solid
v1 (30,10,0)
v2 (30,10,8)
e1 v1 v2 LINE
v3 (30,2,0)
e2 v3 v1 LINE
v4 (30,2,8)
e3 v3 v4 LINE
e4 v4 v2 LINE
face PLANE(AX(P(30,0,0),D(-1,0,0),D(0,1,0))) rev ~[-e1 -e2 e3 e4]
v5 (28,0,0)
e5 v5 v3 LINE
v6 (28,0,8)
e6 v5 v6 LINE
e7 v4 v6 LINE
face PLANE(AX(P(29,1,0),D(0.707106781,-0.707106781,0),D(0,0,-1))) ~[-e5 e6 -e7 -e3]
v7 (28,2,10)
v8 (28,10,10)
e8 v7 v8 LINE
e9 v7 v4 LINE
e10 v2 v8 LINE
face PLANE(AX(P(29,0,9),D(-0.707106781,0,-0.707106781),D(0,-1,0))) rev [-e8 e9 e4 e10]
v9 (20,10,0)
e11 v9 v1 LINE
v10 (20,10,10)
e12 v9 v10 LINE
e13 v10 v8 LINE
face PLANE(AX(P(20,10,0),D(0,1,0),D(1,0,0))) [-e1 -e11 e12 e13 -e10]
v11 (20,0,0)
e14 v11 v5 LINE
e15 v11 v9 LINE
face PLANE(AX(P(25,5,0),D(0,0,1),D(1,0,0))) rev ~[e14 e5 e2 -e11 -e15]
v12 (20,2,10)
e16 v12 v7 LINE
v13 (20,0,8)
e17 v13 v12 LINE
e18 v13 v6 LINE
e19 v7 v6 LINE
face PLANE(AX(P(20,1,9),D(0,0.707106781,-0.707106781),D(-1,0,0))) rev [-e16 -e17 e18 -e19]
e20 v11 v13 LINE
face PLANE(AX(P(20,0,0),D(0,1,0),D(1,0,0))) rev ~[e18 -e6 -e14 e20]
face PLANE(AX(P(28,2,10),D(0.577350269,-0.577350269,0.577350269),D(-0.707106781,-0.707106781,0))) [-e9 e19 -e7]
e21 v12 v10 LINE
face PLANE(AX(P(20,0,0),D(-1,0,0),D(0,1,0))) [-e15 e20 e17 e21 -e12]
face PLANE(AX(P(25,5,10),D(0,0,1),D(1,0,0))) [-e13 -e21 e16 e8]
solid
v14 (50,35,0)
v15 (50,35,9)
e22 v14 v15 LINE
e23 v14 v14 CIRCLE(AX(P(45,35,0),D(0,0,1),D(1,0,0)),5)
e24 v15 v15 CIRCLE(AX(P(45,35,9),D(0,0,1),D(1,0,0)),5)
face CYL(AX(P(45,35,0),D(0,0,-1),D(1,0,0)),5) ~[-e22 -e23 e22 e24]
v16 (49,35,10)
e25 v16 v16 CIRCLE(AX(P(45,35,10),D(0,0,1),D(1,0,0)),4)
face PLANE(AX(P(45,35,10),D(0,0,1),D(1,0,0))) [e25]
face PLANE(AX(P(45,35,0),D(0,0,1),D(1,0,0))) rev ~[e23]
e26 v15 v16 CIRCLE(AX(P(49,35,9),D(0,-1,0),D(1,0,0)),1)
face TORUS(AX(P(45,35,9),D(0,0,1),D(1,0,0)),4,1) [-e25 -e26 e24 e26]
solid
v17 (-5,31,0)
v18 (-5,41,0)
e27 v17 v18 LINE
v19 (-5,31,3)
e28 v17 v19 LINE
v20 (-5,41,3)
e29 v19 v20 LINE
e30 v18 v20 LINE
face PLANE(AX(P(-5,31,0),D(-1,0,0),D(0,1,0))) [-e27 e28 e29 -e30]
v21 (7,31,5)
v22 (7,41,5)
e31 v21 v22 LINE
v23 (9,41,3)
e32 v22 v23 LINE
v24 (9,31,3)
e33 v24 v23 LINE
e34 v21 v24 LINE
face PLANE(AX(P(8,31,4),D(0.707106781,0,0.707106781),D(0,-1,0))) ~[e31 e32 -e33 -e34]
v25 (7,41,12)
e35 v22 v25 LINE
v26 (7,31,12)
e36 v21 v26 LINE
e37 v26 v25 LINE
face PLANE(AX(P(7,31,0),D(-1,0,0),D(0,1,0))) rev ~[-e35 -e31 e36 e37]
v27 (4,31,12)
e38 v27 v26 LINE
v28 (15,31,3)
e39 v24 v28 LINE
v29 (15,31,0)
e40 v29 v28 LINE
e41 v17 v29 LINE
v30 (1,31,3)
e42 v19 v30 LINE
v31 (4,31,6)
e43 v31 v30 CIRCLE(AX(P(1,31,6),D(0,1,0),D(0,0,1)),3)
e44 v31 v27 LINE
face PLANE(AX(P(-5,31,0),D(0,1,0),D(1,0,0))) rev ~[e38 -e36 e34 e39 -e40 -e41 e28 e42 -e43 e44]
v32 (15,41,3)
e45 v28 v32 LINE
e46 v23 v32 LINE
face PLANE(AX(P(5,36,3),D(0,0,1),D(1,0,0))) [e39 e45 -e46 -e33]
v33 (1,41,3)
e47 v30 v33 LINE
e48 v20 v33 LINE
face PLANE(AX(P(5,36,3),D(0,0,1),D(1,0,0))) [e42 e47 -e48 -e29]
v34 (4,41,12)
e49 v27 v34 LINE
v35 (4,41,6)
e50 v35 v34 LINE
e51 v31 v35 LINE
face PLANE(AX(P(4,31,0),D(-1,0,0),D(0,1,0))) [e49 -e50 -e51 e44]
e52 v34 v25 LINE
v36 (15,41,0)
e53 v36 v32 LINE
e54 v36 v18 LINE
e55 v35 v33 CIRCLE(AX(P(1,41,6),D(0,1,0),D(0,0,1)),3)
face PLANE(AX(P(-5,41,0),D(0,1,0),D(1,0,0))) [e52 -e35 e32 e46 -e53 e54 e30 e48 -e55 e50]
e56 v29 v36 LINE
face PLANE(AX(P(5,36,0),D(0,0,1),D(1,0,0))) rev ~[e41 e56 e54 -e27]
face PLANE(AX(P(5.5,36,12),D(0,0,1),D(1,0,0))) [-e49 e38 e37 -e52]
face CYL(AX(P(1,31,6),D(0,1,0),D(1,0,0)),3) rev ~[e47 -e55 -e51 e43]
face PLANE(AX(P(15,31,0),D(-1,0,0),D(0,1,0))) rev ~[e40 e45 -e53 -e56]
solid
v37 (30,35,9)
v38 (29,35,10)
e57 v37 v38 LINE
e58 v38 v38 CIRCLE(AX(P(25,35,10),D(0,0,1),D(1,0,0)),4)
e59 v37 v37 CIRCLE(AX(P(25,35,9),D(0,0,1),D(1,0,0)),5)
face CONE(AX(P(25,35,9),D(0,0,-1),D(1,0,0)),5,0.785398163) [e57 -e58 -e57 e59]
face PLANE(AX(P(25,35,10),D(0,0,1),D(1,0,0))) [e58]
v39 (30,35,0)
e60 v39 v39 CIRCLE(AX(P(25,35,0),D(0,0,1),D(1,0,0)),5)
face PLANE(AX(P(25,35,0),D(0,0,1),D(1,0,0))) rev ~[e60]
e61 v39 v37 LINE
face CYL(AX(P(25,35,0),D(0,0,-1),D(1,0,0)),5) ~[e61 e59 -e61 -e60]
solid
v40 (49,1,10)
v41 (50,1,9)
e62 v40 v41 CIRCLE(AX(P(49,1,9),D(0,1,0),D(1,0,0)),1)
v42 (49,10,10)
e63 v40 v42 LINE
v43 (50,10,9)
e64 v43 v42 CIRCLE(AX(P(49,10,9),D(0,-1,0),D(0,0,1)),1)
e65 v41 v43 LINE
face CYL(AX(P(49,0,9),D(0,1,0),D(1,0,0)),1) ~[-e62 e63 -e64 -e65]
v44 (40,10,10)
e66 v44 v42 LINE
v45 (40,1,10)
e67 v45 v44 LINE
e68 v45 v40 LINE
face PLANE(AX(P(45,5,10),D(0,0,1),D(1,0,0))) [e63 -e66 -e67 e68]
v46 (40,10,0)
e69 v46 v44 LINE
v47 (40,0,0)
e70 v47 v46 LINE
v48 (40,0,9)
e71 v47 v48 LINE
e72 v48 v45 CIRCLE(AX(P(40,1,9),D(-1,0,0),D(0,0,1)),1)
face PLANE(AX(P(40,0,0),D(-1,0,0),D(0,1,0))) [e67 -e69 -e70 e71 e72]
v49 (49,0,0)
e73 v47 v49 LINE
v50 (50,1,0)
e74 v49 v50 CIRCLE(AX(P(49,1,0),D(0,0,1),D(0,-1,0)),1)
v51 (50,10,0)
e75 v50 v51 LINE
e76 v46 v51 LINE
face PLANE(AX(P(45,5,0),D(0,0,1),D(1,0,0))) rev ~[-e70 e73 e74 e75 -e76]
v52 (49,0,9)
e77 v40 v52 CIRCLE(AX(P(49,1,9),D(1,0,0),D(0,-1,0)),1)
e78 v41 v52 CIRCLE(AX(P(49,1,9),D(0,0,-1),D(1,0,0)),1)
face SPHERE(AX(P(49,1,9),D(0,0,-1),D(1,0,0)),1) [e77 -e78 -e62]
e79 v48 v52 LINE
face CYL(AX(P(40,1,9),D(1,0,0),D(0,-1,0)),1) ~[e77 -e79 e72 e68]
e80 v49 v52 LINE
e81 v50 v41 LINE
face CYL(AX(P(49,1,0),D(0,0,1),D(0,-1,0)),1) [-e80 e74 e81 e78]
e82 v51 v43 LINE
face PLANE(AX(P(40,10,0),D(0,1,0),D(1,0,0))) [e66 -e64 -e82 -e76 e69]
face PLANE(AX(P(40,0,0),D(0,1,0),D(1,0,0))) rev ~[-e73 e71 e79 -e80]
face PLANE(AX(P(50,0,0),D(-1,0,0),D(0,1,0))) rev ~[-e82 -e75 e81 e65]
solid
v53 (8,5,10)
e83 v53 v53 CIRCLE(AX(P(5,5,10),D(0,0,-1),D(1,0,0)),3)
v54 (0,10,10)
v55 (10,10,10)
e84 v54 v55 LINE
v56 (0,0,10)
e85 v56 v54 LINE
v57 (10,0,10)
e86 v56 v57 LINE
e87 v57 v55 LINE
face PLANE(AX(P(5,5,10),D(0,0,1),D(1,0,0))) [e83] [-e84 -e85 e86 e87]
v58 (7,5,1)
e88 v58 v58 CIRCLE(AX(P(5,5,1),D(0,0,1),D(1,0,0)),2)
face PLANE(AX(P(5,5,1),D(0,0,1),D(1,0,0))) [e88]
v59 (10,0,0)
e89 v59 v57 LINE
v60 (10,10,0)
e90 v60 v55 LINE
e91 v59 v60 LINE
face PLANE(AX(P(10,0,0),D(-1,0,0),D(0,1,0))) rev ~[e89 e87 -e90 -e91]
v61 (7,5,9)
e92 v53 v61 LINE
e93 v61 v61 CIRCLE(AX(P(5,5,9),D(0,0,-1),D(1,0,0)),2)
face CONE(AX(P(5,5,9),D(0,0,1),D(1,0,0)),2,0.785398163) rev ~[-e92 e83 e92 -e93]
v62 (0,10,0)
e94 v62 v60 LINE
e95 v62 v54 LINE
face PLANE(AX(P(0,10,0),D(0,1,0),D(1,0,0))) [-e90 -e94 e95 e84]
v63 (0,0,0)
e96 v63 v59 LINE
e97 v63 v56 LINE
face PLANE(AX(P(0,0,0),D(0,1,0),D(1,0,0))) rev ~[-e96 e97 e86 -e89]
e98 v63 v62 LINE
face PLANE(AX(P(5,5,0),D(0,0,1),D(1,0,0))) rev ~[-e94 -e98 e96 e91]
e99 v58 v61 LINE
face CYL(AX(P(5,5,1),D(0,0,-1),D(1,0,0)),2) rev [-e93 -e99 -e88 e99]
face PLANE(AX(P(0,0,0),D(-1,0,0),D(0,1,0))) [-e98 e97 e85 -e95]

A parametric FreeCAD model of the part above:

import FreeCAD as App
import Part
import Sketcher
from FreeCAD import Vector


def edges_at(feature, points):
    """Names of the edges that pass closest to the given points."""
    edges = feature.Shape.Edges
    near = lambda p: min(range(len(edges)), key=lambda i: edges[i].distToShape(Part.Vertex(*p))[0])
    return sorted({f"Edge{near(p) + 1}" for p in points})

doc = App.newDocument("Part")
body = doc.addObject("PartDesign::Body", "Body")

# Sketch on XY plane
sketch1 = body.newObject("Sketcher::SketchObject", "Sketch")
sketch1.AttachmentSupport = (doc.getObject("XY_Plane"), [""])
sketch1.MapMode = "FlatFace"
sketch1.addGeometry([
    Part.LineSegment(Vector(40, 10, 0), Vector(40, 0, 0)),
    Part.LineSegment(Vector(40, 0, 0), Vector(50, 0, 0)),
    Part.LineSegment(Vector(50, 0, 0), Vector(50, 10, 0)),
    Part.LineSegment(Vector(50, 10, 0), Vector(40, 10, 0)),
], False)
sketch1.addConstraint([
    Sketcher.Constraint("Coincident", 0, 2, 1, 1),
    Sketcher.Constraint("Coincident", 1, 2, 2, 1),
    Sketcher.Constraint("Coincident", 2, 2, 3, 1),
    Sketcher.Constraint("Coincident", 3, 2, 0, 1),
    Sketcher.Constraint("Vertical", 0),
    Sketcher.Constraint("Horizontal", 1),
    Sketcher.Constraint("Vertical", 2),
    Sketcher.Constraint("Horizontal", 3),
    Sketcher.Constraint("PointOnObject", 0, 2, -1),
    Sketcher.Constraint("Equal", 3, 0),
    Sketcher.Constraint("DistanceX", 1, 1, 1, 2, 10.0),
    Sketcher.Constraint("DistanceX", -1, 1, 0, 2, 40.0),
])
pad1 = body.newObject("PartDesign::Pad", "Pad")
pad1.Profile = sketch1
pad1.Length = 10
doc.recompute()

fillet = body.newObject("PartDesign::Fillet", "Fillet")
fillet.Base = (pad1, edges_at(pad1, [(50, 0, 5), (50, 5, 10), (45, 0, 10)]))
fillet.Radius = 1
body2 = doc.addObject("PartDesign::Body", "Body001")

# Sketch on XY plane
sketch2 = body2.newObject("Sketcher::SketchObject", "Sketch001")
sketch2.AttachmentSupport = (doc.getObject("XY_Plane001"), [""])
sketch2.MapMode = "FlatFace"
sketch2.addGeometry([
    Part.LineSegment(Vector(20, 10, 0), Vector(20, 0, 0)),
    Part.LineSegment(Vector(20, 0, 0), Vector(30, 0, 0)),
    Part.LineSegment(Vector(30, 0, 0), Vector(30, 10, 0)),
    Part.LineSegment(Vector(30, 10, 0), Vector(20, 10, 0)),
], False)
sketch2.addConstraint([
    Sketcher.Constraint("Coincident", 0, 2, 1, 1),
    Sketcher.Constraint("Coincident", 1, 2, 2, 1),
    Sketcher.Constraint("Coincident", 2, 2, 3, 1),
    Sketcher.Constraint("Coincident", 3, 2, 0, 1),
    Sketcher.Constraint("Vertical", 0),
    Sketcher.Constraint("Horizontal", 1),
    Sketcher.Constraint("Vertical", 2),
    Sketcher.Constraint("Horizontal", 3),
    Sketcher.Constraint("PointOnObject", 0, 2, -1),
    Sketcher.Constraint("Equal", 3, 0),
    Sketcher.Constraint("DistanceX", 1, 1, 1, 2, 10.0),
    Sketcher.Constraint("DistanceX", -1, 1, 0, 2, 20.0),
])
pad2 = body2.newObject("PartDesign::Pad", "Pad001")
pad2.Profile = sketch2
pad2.Length = 10
doc.recompute()

chamfer = body2.newObject("PartDesign::Chamfer", "Chamfer")
chamfer.Base = (pad2, edges_at(pad2, [(30, 0, 5), (30, 5, 10), (25, 0, 10)]))
chamfer.Size = 2
body3 = doc.addObject("PartDesign::Body", "Body002")

# Sketch on XY plane
sketch3 = body3.newObject("Sketcher::SketchObject", "Sketch002")
sketch3.AttachmentSupport = (doc.getObject("XY_Plane002"), [""])
sketch3.MapMode = "FlatFace"
sketch3.AttachmentOffset = App.Placement(Vector(0, 0, 1), App.Rotation())
sketch3.addGeometry(Part.Circle(Vector(0, 0, 0), Vector(0, 0, 1), 2), False)
sketch3.addConstraint([
    Sketcher.Constraint("Coincident", 0, 3, -1, 1),
    Sketcher.Constraint("Diameter", 0, 4.0),
])
pad3 = body3.newObject("PartDesign::Pad", "Pad002")
pad3.Profile = sketch3
pad3.Length = 10
body4 = doc.addObject("PartDesign::Body", "Body003")

# Sketch on XY plane
sketch4 = body4.newObject("Sketcher::SketchObject", "Sketch003")
sketch4.AttachmentSupport = (doc.getObject("XY_Plane003"), [""])
sketch4.MapMode = "FlatFace"
sketch4.addGeometry([
    Part.LineSegment(Vector(-5, 5, 0), Vector(-5, -5, 0)),
    Part.LineSegment(Vector(-5, -5, 0), Vector(5, -5, 0)),
    Part.LineSegment(Vector(5, -5, 0), Vector(5, 5, 0)),
    Part.LineSegment(Vector(5, 5, 0), Vector(-5, 5, 0)),
], False)
sketch4.addConstraint([
    Sketcher.Constraint("Coincident", 0, 2, 1, 1),
    Sketcher.Constraint("Coincident", 1, 2, 2, 1),
    Sketcher.Constraint("Coincident", 2, 2, 3, 1),
    Sketcher.Constraint("Coincident", 3, 2, 0, 1),
    Sketcher.Constraint("Vertical", 0),
    Sketcher.Constraint("Horizontal", 1),
    Sketcher.Constraint("Vertical", 2),
    Sketcher.Constraint("Horizontal", 3),
    Sketcher.Constraint("Symmetric", 0, 2, 2, 2, -1, 1),
    Sketcher.Constraint("Equal", 3, 0),
    Sketcher.Constraint("DistanceX", 1, 1, 1, 2, 10.0),
])
pad4 = body4.newObject("PartDesign::Pad", "Pad003")
pad4.Profile = sketch4
pad4.Length = 10
doc.recompute()

boolean = body4.newObject("PartDesign::Boolean", "Boolean")
boolean.Type = "Cut"
boolean.addObjects([body3])
body5 = doc.addObject("PartDesign::Body", "Body004")
doc.recompute()

body4.Placement = App.Placement(Vector(5, 5, 0), App.Rotation(Vector(0, 0, 1), 0))
boolean2 = body5.newObject("PartDesign::Boolean", "Boolean001")
boolean2.Type = "Fuse"
boolean2.addObjects([body4])
doc.recompute()

chamfer2 = body5.newObject("PartDesign::Chamfer", "Chamfer001")
chamfer2.Base = (boolean2, edges_at(boolean2, [(3, 5, 10)]))
chamfer2.Size = 1
body6 = doc.addObject("PartDesign::Body", "Body005")

# Sketch on XY plane
sketch5 = body6.newObject("Sketcher::SketchObject", "Sketch004")
sketch5.AttachmentSupport = (doc.getObject("XY_Plane005"), [""])
sketch5.MapMode = "FlatFace"
sketch5.addGeometry(Part.Circle(Vector(45, 35, 0), Vector(0, 0, 1), 5), False)
sketch5.addConstraint([
    Sketcher.Constraint("Diameter", 0, 10.0),
    Sketcher.Constraint("DistanceX", -1, 1, 0, 3, 45.0),
    Sketcher.Constraint("DistanceY", -1, 1, 0, 3, 35.0),
])
pad5 = body6.newObject("PartDesign::Pad", "Pad004")
pad5.Profile = sketch5
pad5.Length = 10
doc.recompute()

fillet2 = body6.newObject("PartDesign::Fillet", "Fillet001")
fillet2.Base = (pad5, edges_at(pad5, [(40, 35, 10)]))
fillet2.Radius = 1
body7 = doc.addObject("PartDesign::Body", "Body006")

# Sketch on XY plane
sketch6 = body7.newObject("Sketcher::SketchObject", "Sketch005")
sketch6.AttachmentSupport = (doc.getObject("XY_Plane006"), [""])
sketch6.MapMode = "FlatFace"
sketch6.addGeometry(Part.Circle(Vector(25, 35, 0), Vector(0, 0, 1), 5), False)
sketch6.addConstraint([
    Sketcher.Constraint("Diameter", 0, 10.0),
    Sketcher.Constraint("DistanceX", -1, 1, 0, 3, 25.0),
    Sketcher.Constraint("DistanceY", -1, 1, 0, 3, 35.0),
])
pad6 = body7.newObject("PartDesign::Pad", "Pad005")
pad6.Profile = sketch6
pad6.Length = 10
doc.recompute()

chamfer3 = body7.newObject("PartDesign::Chamfer", "Chamfer002")
chamfer3.Base = (pad6, edges_at(pad6, [(20, 35, 10)]))
chamfer3.Size = 1
body8 = doc.addObject("PartDesign::Body", "Body007")

# Sketch on XY plane
sketch7 = body8.newObject("Sketcher::SketchObject", "Sketch006")
sketch7.AttachmentSupport = (doc.getObject("XY_Plane007"), [""])
sketch7.MapMode = "FlatFace"
sketch7.addGeometry([
    Part.LineSegment(Vector(0, 10, 0), Vector(0, 0, 0)),
    Part.LineSegment(Vector(0, 0, 0), Vector(20, 0, 0)),
    Part.LineSegment(Vector(20, 0, 0), Vector(20, 10, 0)),
    Part.LineSegment(Vector(20, 10, 0), Vector(0, 10, 0)),
], False)
sketch7.addConstraint([
    Sketcher.Constraint("Coincident", 0, 2, 1, 1),
    Sketcher.Constraint("Coincident", 1, 2, 2, 1),
    Sketcher.Constraint("Coincident", 2, 2, 3, 1),
    Sketcher.Constraint("Coincident", 3, 2, 0, 1),
    Sketcher.Constraint("Vertical", 0),
    Sketcher.Constraint("Horizontal", 1),
    Sketcher.Constraint("Vertical", 2),
    Sketcher.Constraint("Horizontal", 3),
    Sketcher.Constraint("Coincident", 0, 2, -1, 1),
    Sketcher.Constraint("DistanceX", 1, 1, 1, 2, 20.0),
    Sketcher.Constraint("DistanceY", 0, 2, 0, 1, 10.0),
])
pad7 = body8.newObject("PartDesign::Pad", "Pad006")
pad7.Profile = sketch7
pad7.Length = 3
body9 = doc.addObject("PartDesign::Body", "Body008")

# Sketch on XY plane
sketch8 = body9.newObject("Sketcher::SketchObject", "Sketch007")
sketch8.AttachmentSupport = (doc.getObject("XY_Plane008"), [""])
sketch8.MapMode = "FlatFace"
sketch8.addGeometry([
    Part.LineSegment(Vector(9, 10, 0), Vector(9, 0, 0)),
    Part.LineSegment(Vector(9, 0, 0), Vector(12, 0, 0)),
    Part.LineSegment(Vector(12, 0, 0), Vector(12, 10, 0)),
    Part.LineSegment(Vector(12, 10, 0), Vector(9, 10, 0)),
], False)
sketch8.addConstraint([
    Sketcher.Constraint("Coincident", 0, 2, 1, 1),
    Sketcher.Constraint("Coincident", 1, 2, 2, 1),
    Sketcher.Constraint("Coincident", 2, 2, 3, 1),
    Sketcher.Constraint("Coincident", 3, 2, 0, 1),
    Sketcher.Constraint("Vertical", 0),
    Sketcher.Constraint("Horizontal", 1),
    Sketcher.Constraint("Vertical", 2),
    Sketcher.Constraint("Horizontal", 3),
    Sketcher.Constraint("PointOnObject", 0, 2, -1),
    Sketcher.Constraint("DistanceX", 1, 1, 1, 2, 3.0),
    Sketcher.Constraint("DistanceY", 0, 2, 0, 1, 10.0),
    Sketcher.Constraint("DistanceX", -1, 1, 0, 2, 9.0),
])
pad8 = body9.newObject("PartDesign::Pad", "Pad007")
pad8.Profile = sketch8
pad8.Length = 12
doc.recompute()

boolean3 = body9.newObject("PartDesign::Boolean", "Boolean002")
boolean3.Type = "Fuse"
boolean3.addObjects([body8])
body10 = doc.addObject("PartDesign::Body", "Body009")
doc.recompute()

body9.Placement = App.Placement(Vector(-5, 31, 0), App.Rotation(Vector(0, 0, 1), 0))
boolean4 = body10.newObject("PartDesign::Boolean", "Boolean003")
boolean4.Type = "Fuse"
boolean4.addObjects([body9])
doc.recompute()

chamfer4 = body10.newObject("PartDesign::Chamfer", "Chamfer003")
chamfer4.Base = (boolean4, edges_at(boolean4, [(7, 36, 3)]))
chamfer4.Size = 2
doc.recompute()

fillet3 = body10.newObject("PartDesign::Fillet", "Fillet002")
fillet3.Base = (chamfer4, edges_at(chamfer4, [(4, 36, 3)]))
fillet3.Radius = 3

doc.recompute()
